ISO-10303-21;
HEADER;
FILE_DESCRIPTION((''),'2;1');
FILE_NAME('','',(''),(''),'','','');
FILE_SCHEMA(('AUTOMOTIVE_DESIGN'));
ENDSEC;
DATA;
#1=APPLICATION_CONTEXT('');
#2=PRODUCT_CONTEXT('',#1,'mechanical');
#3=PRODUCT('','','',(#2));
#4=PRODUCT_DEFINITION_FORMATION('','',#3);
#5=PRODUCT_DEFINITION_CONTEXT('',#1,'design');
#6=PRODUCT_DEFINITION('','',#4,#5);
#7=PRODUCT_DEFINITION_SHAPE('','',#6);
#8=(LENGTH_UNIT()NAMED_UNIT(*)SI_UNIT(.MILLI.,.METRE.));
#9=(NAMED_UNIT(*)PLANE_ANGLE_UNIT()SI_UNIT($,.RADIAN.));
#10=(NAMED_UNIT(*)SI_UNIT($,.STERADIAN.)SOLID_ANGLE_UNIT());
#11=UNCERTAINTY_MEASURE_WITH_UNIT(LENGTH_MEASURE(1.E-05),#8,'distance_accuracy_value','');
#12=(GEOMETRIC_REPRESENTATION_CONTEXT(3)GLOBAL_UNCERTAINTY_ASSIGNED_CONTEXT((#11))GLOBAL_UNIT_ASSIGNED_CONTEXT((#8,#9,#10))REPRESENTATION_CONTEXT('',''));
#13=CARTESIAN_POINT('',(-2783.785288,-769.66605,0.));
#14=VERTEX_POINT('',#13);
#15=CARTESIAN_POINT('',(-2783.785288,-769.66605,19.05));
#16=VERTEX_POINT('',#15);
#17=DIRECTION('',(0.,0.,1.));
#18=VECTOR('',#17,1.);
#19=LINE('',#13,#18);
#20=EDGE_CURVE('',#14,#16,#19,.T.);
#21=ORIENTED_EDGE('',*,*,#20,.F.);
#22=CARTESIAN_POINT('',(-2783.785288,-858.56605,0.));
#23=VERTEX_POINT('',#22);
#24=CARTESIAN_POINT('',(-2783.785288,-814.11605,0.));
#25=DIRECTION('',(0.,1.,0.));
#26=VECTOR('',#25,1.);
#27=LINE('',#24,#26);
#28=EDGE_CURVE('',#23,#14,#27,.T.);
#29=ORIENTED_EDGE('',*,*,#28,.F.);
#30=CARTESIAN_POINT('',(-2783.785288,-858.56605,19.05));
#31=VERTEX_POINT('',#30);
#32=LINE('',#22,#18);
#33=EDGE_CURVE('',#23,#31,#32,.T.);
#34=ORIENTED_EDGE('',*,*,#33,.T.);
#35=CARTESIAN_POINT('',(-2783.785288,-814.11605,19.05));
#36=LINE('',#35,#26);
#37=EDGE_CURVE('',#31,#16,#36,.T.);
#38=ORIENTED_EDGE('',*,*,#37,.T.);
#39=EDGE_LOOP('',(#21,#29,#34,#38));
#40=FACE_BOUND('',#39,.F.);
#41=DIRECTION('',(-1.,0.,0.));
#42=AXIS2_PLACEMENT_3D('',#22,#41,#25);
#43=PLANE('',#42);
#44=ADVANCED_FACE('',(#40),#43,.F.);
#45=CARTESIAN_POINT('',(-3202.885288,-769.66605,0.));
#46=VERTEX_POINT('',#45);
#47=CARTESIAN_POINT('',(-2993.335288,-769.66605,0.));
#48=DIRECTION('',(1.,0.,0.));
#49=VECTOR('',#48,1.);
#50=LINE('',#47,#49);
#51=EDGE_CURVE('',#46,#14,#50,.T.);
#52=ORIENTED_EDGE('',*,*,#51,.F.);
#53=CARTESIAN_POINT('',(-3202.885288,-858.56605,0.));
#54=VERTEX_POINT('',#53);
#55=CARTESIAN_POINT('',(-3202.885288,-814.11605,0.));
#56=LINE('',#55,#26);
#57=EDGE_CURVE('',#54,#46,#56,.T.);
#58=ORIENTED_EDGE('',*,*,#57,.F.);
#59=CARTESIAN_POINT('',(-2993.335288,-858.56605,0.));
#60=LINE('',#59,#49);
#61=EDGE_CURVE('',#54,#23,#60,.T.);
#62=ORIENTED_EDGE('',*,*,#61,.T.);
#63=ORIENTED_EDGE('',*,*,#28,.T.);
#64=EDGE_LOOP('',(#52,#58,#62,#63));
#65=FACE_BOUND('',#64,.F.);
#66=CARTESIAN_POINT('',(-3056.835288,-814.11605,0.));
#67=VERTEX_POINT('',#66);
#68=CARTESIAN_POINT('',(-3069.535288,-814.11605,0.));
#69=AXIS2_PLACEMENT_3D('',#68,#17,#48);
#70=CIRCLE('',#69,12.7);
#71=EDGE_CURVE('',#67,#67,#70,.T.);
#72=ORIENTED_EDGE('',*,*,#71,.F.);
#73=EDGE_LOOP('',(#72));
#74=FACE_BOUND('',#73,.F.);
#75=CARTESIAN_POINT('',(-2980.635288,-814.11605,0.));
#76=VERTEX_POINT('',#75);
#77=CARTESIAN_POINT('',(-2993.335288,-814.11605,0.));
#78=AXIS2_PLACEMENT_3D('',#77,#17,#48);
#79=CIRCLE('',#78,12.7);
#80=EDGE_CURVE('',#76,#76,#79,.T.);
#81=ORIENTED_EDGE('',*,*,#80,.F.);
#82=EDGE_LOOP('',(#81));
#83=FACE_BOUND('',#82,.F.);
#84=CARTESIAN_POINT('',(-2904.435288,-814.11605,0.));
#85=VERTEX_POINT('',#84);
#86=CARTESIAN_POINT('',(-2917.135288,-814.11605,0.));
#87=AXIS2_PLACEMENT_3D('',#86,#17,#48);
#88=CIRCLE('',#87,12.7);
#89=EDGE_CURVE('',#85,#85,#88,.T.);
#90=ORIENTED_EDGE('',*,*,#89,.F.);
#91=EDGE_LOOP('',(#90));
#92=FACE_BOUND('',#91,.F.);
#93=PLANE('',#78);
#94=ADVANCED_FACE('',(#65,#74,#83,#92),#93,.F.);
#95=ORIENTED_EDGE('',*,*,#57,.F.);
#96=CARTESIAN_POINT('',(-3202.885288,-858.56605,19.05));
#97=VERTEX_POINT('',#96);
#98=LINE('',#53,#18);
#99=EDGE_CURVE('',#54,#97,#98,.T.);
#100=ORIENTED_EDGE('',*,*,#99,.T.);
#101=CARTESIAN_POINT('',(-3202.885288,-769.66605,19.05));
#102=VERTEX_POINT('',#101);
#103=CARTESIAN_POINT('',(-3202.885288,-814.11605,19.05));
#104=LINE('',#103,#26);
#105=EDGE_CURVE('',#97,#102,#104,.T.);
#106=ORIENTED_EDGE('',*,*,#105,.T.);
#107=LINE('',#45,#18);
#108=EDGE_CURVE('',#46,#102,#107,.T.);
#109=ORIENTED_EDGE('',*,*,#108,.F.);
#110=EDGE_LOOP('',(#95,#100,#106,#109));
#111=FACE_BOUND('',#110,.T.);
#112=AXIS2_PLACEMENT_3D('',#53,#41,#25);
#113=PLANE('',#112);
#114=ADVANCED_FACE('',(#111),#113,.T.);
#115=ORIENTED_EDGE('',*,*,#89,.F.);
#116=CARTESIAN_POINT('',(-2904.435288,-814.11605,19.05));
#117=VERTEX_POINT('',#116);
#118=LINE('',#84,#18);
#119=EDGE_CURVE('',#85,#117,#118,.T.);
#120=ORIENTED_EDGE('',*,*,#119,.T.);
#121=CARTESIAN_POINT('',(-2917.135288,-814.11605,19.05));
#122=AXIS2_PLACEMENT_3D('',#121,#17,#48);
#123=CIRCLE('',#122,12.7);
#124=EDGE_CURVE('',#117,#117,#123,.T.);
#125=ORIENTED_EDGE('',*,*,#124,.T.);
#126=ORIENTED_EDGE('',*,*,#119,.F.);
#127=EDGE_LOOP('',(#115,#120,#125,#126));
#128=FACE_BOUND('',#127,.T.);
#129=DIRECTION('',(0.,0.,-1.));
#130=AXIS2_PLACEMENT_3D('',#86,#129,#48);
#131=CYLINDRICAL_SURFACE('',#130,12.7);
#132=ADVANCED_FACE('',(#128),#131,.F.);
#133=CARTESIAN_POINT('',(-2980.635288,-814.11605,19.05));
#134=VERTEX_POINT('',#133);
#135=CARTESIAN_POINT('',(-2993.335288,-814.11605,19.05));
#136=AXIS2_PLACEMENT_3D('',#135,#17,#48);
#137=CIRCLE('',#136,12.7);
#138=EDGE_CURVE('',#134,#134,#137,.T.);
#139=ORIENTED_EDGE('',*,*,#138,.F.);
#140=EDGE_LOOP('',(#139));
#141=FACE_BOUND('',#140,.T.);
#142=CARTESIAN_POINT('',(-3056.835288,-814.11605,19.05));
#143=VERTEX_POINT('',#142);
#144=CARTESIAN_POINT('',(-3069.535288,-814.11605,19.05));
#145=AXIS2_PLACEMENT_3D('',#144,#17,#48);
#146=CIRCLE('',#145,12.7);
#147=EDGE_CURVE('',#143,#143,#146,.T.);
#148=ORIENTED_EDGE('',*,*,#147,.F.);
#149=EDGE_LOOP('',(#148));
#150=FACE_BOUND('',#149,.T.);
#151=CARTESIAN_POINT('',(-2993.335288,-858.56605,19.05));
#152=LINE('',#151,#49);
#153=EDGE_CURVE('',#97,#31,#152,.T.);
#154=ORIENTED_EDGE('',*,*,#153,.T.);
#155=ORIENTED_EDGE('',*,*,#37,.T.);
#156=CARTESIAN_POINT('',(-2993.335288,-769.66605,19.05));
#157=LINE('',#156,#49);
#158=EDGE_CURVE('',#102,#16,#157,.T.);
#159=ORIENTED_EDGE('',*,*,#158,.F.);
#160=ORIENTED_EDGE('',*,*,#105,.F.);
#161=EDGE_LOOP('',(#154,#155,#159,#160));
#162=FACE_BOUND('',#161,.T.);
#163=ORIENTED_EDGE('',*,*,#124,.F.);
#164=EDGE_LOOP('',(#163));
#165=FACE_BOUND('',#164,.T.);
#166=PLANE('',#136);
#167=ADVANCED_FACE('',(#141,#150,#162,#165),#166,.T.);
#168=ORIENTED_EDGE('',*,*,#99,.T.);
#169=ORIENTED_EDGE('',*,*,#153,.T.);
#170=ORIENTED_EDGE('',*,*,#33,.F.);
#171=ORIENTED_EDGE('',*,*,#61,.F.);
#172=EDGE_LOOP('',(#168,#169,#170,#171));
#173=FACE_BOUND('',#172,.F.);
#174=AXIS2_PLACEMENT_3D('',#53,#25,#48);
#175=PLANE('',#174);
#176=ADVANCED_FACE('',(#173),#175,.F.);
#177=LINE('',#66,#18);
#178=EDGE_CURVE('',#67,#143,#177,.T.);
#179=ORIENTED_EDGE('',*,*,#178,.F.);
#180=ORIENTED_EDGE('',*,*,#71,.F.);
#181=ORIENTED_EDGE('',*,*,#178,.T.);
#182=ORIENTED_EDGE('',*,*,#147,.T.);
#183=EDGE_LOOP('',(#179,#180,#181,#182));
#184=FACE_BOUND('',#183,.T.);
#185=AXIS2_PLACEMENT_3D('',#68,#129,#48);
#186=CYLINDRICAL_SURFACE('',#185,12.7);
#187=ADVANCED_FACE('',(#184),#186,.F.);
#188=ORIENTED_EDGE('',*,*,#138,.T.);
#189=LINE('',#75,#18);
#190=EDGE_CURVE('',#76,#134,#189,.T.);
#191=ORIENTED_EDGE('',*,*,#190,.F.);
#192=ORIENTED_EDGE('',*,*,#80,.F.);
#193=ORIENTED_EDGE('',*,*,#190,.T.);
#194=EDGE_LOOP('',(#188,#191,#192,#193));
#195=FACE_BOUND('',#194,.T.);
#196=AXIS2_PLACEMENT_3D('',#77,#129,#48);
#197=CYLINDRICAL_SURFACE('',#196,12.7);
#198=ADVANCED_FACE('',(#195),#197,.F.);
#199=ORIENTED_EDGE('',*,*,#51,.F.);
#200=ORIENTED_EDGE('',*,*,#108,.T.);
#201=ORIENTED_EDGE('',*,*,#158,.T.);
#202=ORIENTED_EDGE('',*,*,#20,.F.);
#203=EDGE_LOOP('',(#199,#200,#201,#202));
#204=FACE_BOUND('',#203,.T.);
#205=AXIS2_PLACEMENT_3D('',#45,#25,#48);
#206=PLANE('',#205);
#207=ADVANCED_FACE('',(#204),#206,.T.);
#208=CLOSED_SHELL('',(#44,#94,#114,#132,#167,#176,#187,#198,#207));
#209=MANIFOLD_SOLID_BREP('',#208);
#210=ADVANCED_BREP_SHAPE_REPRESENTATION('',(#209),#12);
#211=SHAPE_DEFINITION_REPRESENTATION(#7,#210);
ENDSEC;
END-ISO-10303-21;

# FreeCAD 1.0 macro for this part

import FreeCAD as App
import Part
import Sketcher
Q = App.Units.Quantity


def add_polygon(sketch, points):
    """Adds a closed chain of lines whose ends are joined by coincident constraints."""
    first, n = sketch.GeometryCount, len(points)
    for a, b in zip(points, points[1:] + points[:1]):
        sketch.addGeometry(Part.LineSegment(App.Vector(*a, 0), App.Vector(*b, 0)), False)
    for i in range(n):
        sketch.addConstraint(Sketcher.Constraint("Coincident", first + i, 2, first + (i + 1) % n, 1))

doc = App.newDocument("Part")
body = doc.addObject("PartDesign::Body", "Body")

sketch1 = body.newObject("Sketcher::SketchObject", "Sketch")
sketch1.AttachmentSupport = (doc.getObject("XY_Plane"), [""])
sketch1.MapMode = "FlatFace"
add_polygon(sketch1, [(-3203, -770), (-3203, -859), (-2784, -859), (-2784, -770)])
sketch1.addGeometry(Part.Circle(App.Vector(-3070, -814, 0), App.Vector(0, 0, 1), 13), False)
sketch1.addGeometry(Part.Circle(App.Vector(-2993, -814, 0), App.Vector(0, 0, 1), 13), False)
sketch1.addGeometry(Part.Circle(App.Vector(-2917, -814, 0), App.Vector(0, 0, 1), 13), False)
sketch1.addConstraint(Sketcher.Constraint("Vertical", 0))
sketch1.addConstraint(Sketcher.Constraint("Horizontal", 1))
sketch1.addConstraint(Sketcher.Constraint("Vertical", 2))
sketch1.addConstraint(Sketcher.Constraint("Horizontal", 3))
sketch1.addConstraint(Sketcher.Constraint("Equal", 4, 5))
sketch1.addConstraint(Sketcher.Constraint("Equal", 5, 6))
sketch1.addConstraint(Sketcher.Constraint("Horizontal", 4, 3, 5, 3))
sketch1.addConstraint(Sketcher.Constraint("Horizontal", 5, 3, 6, 3))
sketch1.addConstraint(Sketcher.Constraint("Diameter", 4, Q("1 in")))
sketch1.addConstraint(Sketcher.Constraint("DistanceX", 1, 1, 1, 2, Q("16.5 in")))
sketch1.addConstraint(Sketcher.Constraint("DistanceY", 0, 2, 0, 1, Q("3.5 in")))
sketch1.addConstraint(Sketcher.Constraint("DistanceX", 4, 3, 5, 3, Q("3 in")))
sketch1.addConstraint(Sketcher.Constraint("DistanceX", 5, 3, 6, 3, Q("3 in")))
sketch1.addConstraint(Sketcher.Constraint("DistanceX", 0, 2, 4, 3, Q("5.25 in")))
sketch1.addConstraint(Sketcher.Constraint("DistanceY", 0, 2, 4, 3, Q("1.75 in")))
sketch1.addConstraint(Sketcher.Constraint("DistanceX", 4, 3, -1, 1, 3069.535288))
sketch1.addConstraint(Sketcher.Constraint("DistanceY", 4, 3, -1, 1, 814.11605))
pad1 = body.newObject("PartDesign::Pad", "Pad")
pad1.Profile = sketch1
pad1.Length = Q("0.75 in")

doc.recompute()
